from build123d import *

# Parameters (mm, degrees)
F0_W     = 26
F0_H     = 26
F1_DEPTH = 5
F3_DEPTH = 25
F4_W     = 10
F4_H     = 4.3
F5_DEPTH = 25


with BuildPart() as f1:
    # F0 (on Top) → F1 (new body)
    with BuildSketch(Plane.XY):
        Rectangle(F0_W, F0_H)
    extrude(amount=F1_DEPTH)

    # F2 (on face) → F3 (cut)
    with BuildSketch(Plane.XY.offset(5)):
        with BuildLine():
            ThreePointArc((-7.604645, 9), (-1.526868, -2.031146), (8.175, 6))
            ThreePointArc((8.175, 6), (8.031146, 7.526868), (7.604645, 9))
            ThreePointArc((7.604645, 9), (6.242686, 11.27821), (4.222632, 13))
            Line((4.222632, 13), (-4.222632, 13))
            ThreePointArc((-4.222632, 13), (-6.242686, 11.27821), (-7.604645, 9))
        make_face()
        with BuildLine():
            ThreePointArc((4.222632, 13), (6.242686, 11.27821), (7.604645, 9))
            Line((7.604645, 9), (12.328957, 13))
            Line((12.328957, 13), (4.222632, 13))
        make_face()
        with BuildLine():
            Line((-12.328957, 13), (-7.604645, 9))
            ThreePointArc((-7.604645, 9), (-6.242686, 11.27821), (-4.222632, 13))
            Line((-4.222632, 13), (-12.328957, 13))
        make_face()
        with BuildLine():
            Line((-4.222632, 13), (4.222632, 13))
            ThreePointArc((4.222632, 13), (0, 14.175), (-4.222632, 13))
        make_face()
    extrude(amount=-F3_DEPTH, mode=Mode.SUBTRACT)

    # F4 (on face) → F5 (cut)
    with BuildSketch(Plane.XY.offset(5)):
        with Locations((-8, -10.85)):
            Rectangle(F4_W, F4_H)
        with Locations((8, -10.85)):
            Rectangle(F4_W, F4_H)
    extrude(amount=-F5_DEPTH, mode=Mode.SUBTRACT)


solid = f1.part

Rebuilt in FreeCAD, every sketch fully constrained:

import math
import FreeCAD as App
import Part
import Sketcher

V = App.Vector


def add_polygon(sketch, points):
    """Adds a closed chain of lines whose ends are joined by coincident constraints."""
    first, n = sketch.GeometryCount, len(points)
    for a, b in zip(points, points[1:] + points[:1]):
        sketch.addGeometry(Part.LineSegment(App.Vector(*a, 0), App.Vector(*b, 0)), False)
    for i in range(n):
        sketch.addConstraint(Sketcher.Constraint("Coincident", first + i, 2, first + (i + 1) % n, 1))

doc = App.newDocument("Part")
params = doc.addObject("Spreadsheet::Sheet", "Params")
for row, (alias, value) in enumerate([
    ("sketch1_width", "26 mm"),
    ("pad1_length", "5 mm"),
    ("pocket1_length", "25 mm"),
    ("sketch3_width", "10 mm"),
    ("sketch3_height", "4.3 mm"),
    ("pocket2_length", "25 mm"),
], start=1):
    params.set(f"A{row}", alias)
    params.set(f"B{row}", "=" + value)
    params.setAlias(f"B{row}", alias)

body = doc.addObject("PartDesign::Body", "Body")

sketch1 = body.newObject("Sketcher::SketchObject", "Sketch")
sketch1.AttachmentSupport = (doc.getObject("XY_Plane"), [""])
sketch1.MapMode = "FlatFace"
add_polygon(sketch1, [(-13, 13), (-13, -13), (13, -13), (13, 13)])
sketch1.addConstraint(Sketcher.Constraint("Vertical", 0))
sketch1.addConstraint(Sketcher.Constraint("Horizontal", 1))
sketch1.addConstraint(Sketcher.Constraint("Vertical", 2))
sketch1.addConstraint(Sketcher.Constraint("Horizontal", 3))
sketch1.addConstraint(Sketcher.Constraint("Symmetric", 0, 2, 2, 2, -1, 1))
sketch1.addConstraint(Sketcher.Constraint("Equal", 3, 0))
sketch1.addConstraint(Sketcher.Constraint("DistanceX", 1, 1, 1, 2, 26.0))
sketch1.setExpression("Constraints[10]", "Params.sketch1_width")
pad1 = body.newObject("PartDesign::Pad", "Pad")
pad1.Profile = sketch1
pad1.setExpression("Length", "Params.pad1_length")

sketch2 = body.newObject("Sketcher::SketchObject", "Sketch001")
sketch2.AttachmentSupport = (doc.getObject("XY_Plane"), [""])
sketch2.MapMode = "FlatFace"
sketch2.AttachmentOffset = App.Placement(V(0, 0, 5), App.Rotation())
sketch2.addGeometry(Part.ArcOfCircle(Part.Circle(V(0, 6, 0), V(0, 0, 1), 8.175), math.radians(158.470975), math.radians(360.000002)), False)
sketch2.addGeometry(Part.ArcOfCircle(Part.Circle(V(0.000023, 6.000004, 0), V(0, 0, 1), 8.174977), math.radians(-0.000031), math.radians(21.529052)), False)
sketch2.addGeometry(Part.LineSegment(V(7.604645, 9, 0), V(12.328957, 13, 0)), False)
sketch2.addGeometry(Part.LineSegment(V(12.328957, 13, 0), V(4.222632, 13, 0)), False)
sketch2.addGeometry(Part.ArcOfCircle(Part.Circle(V(0, 6.000002, 0), V(0, 0, 1), 8.174998), math.radians(58.900222), math.radians(121.099778)), False)
sketch2.addGeometry(Part.LineSegment(V(-4.222632, 13, 0), V(-12.328957, 13, 0)), False)
sketch2.addGeometry(Part.LineSegment(V(-12.328957, 13, 0), V(-7.604645, 9, 0)), False)
sketch2.addConstraint(Sketcher.Constraint("Coincident", 0, 2, 1, 1))
sketch2.addConstraint(Sketcher.Constraint("Coincident", 1, 2, 2, 1))
sketch2.addConstraint(Sketcher.Constraint("Coincident", 2, 2, 3, 1))
sketch2.addConstraint(Sketcher.Constraint("Coincident", 3, 2, 4, 1))
sketch2.addConstraint(Sketcher.Constraint("Coincident", 4, 2, 5, 1))
sketch2.addConstraint(Sketcher.Constraint("Coincident", 5, 2, 6, 1))
sketch2.addConstraint(Sketcher.Constraint("Coincident", 6, 2, 0, 1))
sketch2.addConstraint(Sketcher.Constraint("Horizontal", 3))
sketch2.addConstraint(Sketcher.Constraint("Horizontal", 5))
sketch2.addConstraint(Sketcher.Constraint("Coincident", 4, 3, 0, 3))
sketch2.addConstraint(Sketcher.Constraint("PointOnObject", 0, 3, -2))
sketch2.addConstraint(Sketcher.Constraint("DistanceY", -1, 1, 0, 3, 6.0))
sketch2.addConstraint(Sketcher.Constraint("DistanceY", -1, 1, 0, 2, 6.0))
sketch2.addConstraint(Sketcher.Constraint("DistanceY", -1, 1, 1, 2, 9.0))
sketch2.addConstraint(Sketcher.Constraint("DistanceY", -1, 1, 2, 2, 13.0))
sketch2.addConstraint(Sketcher.Constraint("DistanceY", -1, 1, 4, 2, 13.0))
sketch2.addConstraint(Sketcher.Constraint("DistanceY", -1, 1, 6, 2, 9.0))
sketch2.addConstraint(Sketcher.Constraint("Radius", 0, 8.175))
sketch2.addConstraint(Sketcher.Constraint("Radius", 4, 8.174998))
sketch2.addConstraint(Sketcher.Constraint("Radius", 1, 8.174977))
sketch2.addConstraint(Sketcher.Constraint("DistanceX", 3, 2, 3, 1, 8.106325))
sketch2.addConstraint(Sketcher.Constraint("DistanceX", 5, 2, 5, 1, 8.106325))
sketch2.addConstraint(Sketcher.Constraint("DistanceX", 1, 2, 2, 2, 4.724312))
pocket1 = body.newObject("PartDesign::Pocket", "Pocket")
pocket1.Profile = sketch2
pocket1.setExpression("Length", "Params.pocket1_length")

sketch3 = body.newObject("Sketcher::SketchObject", "Sketch002")
sketch3.AttachmentSupport = (doc.getObject("XY_Plane"), [""])
sketch3.MapMode = "FlatFace"
sketch3.AttachmentOffset = App.Placement(V(0, 0, 5), App.Rotation())
add_polygon(sketch3, [(-13, -8.7), (-13, -13), (-3, -13), (-3, -8.7)])
add_polygon(sketch3, [(3, -8.7), (3, -13), (13, -13), (13, -8.7)])
sketch3.addConstraint(Sketcher.Constraint("Vertical", 0))
sketch3.addConstraint(Sketcher.Constraint("Horizontal", 1))
sketch3.addConstraint(Sketcher.Constraint("Vertical", 2))
sketch3.addConstraint(Sketcher.Constraint("Horizontal", 3))
sketch3.addConstraint(Sketcher.Constraint("Vertical", 4))
sketch3.addConstraint(Sketcher.Constraint("Horizontal", 5))
sketch3.addConstraint(Sketcher.Constraint("Vertical", 6))
sketch3.addConstraint(Sketcher.Constraint("Horizontal", 7))
sketch3.addConstraint(Sketcher.Constraint("Symmetric", 1, 2, 4, 2, -2))
sketch3.addConstraint(Sketcher.Constraint("Symmetric", 3, 2, 6, 2, -2))
sketch3.addConstraint(Sketcher.Constraint("DistanceX", 1, 1, 1, 2, 10.0))
sketch3.addConstraint(Sketcher.Constraint("DistanceY", 0, 2, 0, 1, 4.3))
sketch3.addConstraint(Sketcher.Constraint("DistanceX", 0, 2, -1, 1, 13.0))
sketch3.addConstraint(Sketcher.Constraint("DistanceY", 0, 2, -1, 1, 13.0))
sketch3.setExpression("Constraints[18]", "Params.sketch3_width")
sketch3.setExpression("Constraints[19]", "Params.sketch3_height")
pocket2 = body.newObject("PartDesign::Pocket", "Pocket001")
pocket2.Profile = sketch3
pocket2.setExpression("Length", "Params.pocket2_length")

doc.recompute()
